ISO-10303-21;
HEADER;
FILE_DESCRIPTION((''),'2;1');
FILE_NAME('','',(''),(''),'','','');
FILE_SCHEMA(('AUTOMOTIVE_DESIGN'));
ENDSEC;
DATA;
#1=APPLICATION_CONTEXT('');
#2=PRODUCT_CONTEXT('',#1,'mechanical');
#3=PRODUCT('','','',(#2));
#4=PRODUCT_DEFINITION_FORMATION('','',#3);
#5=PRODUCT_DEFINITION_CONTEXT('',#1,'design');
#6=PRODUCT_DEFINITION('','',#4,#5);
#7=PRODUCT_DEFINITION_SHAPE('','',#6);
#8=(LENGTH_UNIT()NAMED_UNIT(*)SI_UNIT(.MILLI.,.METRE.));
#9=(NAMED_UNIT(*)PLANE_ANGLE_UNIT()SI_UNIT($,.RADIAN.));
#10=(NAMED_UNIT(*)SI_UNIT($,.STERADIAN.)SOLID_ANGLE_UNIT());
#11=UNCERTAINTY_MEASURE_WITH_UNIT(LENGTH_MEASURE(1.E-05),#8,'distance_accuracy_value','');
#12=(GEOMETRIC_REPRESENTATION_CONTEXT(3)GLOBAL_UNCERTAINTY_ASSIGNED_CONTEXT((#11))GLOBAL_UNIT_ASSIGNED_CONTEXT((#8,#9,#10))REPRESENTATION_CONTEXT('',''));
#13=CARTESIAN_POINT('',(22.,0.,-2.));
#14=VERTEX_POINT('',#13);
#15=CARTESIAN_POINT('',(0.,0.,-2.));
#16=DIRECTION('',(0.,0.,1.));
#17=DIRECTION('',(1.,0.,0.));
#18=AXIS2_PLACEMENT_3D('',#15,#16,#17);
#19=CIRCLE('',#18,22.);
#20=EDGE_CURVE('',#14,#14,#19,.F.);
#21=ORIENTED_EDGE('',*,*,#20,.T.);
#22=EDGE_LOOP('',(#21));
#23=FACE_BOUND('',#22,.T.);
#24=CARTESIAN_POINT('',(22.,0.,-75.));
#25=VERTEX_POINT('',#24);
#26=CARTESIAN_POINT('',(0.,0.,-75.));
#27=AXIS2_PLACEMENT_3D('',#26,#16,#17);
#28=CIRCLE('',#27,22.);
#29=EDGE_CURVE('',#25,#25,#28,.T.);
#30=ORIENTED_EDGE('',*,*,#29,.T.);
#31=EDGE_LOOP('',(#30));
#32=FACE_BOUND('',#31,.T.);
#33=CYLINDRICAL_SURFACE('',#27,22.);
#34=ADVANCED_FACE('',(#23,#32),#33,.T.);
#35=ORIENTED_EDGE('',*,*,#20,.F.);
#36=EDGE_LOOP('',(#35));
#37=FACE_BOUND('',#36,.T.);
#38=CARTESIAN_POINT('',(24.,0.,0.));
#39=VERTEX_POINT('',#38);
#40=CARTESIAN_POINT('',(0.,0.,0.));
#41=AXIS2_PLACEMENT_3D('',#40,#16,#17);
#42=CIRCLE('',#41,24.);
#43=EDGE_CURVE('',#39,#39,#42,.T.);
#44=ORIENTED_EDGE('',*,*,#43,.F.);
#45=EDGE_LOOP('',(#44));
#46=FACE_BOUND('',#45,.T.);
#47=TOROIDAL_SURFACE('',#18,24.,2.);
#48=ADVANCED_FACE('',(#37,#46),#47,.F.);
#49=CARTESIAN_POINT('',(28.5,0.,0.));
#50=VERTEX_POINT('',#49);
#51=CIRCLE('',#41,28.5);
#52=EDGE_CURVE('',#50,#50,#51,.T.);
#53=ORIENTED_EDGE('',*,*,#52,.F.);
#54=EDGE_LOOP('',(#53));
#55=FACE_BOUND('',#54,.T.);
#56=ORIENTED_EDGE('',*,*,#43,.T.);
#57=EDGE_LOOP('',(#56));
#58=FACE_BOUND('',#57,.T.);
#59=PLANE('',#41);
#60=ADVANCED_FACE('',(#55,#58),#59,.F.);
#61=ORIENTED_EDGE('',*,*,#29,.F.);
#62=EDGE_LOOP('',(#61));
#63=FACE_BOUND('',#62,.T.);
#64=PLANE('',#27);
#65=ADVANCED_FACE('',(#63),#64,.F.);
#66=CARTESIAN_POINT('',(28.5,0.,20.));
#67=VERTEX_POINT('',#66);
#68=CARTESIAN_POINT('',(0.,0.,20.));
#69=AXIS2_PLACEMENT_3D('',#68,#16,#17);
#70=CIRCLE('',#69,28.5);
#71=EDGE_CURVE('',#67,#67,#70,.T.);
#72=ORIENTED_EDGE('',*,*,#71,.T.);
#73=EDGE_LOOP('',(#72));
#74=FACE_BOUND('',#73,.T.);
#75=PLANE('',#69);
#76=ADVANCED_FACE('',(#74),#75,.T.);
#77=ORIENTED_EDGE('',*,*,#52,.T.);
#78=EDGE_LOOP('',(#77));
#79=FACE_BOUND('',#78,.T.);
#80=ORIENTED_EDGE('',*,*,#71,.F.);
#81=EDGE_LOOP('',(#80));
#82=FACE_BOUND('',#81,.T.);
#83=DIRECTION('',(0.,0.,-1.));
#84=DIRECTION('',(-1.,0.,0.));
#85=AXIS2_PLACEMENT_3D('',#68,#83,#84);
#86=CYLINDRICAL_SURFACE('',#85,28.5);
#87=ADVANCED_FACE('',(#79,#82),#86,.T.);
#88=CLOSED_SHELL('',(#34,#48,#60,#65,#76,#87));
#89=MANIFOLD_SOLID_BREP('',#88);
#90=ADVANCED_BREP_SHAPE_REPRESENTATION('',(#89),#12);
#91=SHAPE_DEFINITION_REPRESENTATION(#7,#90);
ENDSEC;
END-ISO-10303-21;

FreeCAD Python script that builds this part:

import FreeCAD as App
import Part
import Sketcher

V = App.Vector
Q = App.Units.Quantity


def edges_at(feature, points):
    """Names of the edges that pass closest to the given points."""
    edges = feature.Shape.Edges
    near = lambda p: min(range(len(edges)), key=lambda i: edges[i].distToShape(Part.Vertex(*p))[0])
    return sorted({f"Edge{near(p) + 1}" for p in points})

doc = App.newDocument("Part")
body = doc.addObject("PartDesign::Body", "Body")

sketch1 = doc.addObject("Sketcher::SketchObject", "Sketch")
body.addObject(sketch1)
sketch1.AttachmentSupport = (doc.XY_Plane, [""])
sketch1.MapMode = "FlatFace"
sketch1.addGeometry(Part.Circle(V(0, 0, 0), V(0, 0, 1), 22), False)
sketch1.addConstraint([
    Sketcher.Constraint("Coincident", 0, 3, -1, 1),
    Sketcher.Constraint("Diameter", 0, Q("44 mm")),
])
pad1 = doc.addObject("PartDesign::Pad", "Pad")
body.addObject(pad1)
pad1.Profile = sketch1
pad1.Length = 75
pad1.Reversed = True

sketch2 = doc.addObject("Sketcher::SketchObject", "Sketch001")
body.addObject(sketch2)
sketch2.AttachmentSupport = (doc.XY_Plane, [""])
sketch2.MapMode = "FlatFace"
sketch2.addGeometry(Part.Circle(V(0, 0, 0), V(0, 0, 1), 28.5), False)
sketch2.addConstraint([
    Sketcher.Constraint("Coincident", 0, 3, -1, 1),
    Sketcher.Constraint("Diameter", 0, Q("57 mm")),
])
pad2 = doc.addObject("PartDesign::Pad", "Pad001")
body.addObject(pad2)
pad2.Profile = sketch2
pad2.Length = 20
doc.recompute()

fillet = doc.addObject("PartDesign::Fillet", "Fillet")
body.addObject(fillet)
fillet.Base = (pad2, edges_at(pad2, [(-22, 0, 0)]))
fillet.Radius = 2

doc.recompute()
